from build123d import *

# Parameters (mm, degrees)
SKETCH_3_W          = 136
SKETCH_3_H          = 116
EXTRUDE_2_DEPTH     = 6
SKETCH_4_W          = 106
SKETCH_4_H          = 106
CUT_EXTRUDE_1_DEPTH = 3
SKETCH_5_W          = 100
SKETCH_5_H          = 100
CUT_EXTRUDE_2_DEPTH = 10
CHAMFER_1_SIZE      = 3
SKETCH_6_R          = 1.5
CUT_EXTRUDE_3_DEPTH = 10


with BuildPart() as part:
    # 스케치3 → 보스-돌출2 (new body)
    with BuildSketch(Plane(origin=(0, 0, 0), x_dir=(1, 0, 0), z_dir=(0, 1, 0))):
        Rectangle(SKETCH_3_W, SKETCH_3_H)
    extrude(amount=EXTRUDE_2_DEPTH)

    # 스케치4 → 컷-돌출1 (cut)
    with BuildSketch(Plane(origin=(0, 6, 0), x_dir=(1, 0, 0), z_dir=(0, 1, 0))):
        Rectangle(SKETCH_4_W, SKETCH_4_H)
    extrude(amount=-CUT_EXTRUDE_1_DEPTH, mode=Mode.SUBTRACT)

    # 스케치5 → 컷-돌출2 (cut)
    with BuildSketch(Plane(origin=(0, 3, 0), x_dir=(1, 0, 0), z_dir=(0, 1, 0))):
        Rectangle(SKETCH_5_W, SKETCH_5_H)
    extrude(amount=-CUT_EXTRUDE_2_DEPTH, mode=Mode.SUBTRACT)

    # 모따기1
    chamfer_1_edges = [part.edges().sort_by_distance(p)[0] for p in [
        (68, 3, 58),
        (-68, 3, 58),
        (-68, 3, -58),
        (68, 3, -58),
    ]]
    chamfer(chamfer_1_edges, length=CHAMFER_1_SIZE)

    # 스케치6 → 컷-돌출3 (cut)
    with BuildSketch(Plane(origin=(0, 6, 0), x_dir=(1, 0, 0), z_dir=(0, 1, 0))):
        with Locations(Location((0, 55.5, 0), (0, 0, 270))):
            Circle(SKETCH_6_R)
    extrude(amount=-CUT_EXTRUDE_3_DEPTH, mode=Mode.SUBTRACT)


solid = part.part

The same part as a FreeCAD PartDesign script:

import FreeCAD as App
import Part
import Sketcher


def edges_at(feature, points):
    """Names of the edges that pass closest to the given points."""
    edges = feature.Shape.Edges
    near = lambda p: min(range(len(edges)), key=lambda i: edges[i].distToShape(Part.Vertex(*p))[0])
    return sorted({f"Edge{near(p) + 1}" for p in points})

doc = App.newDocument("Part")
body = doc.addObject("PartDesign::Body", "Body")

sketch1 = body.newObject("Sketcher::SketchObject", "Sketch")
sketch1.AttachmentSupport = (doc.getObject("XZ_Plane"), [""])
sketch1.MapMode = "FlatFace"
sketch1.addGeometry([
    Part.LineSegment(App.Vector(-68, -58, 0), App.Vector(-68, 58, 0)),
    Part.LineSegment(App.Vector(-68, 58, 0), App.Vector(68, 58, 0)),
    Part.LineSegment(App.Vector(68, 58, 0), App.Vector(68, -58, 0)),
    Part.LineSegment(App.Vector(68, -58, 0), App.Vector(-68, -58, 0)),
], False)
sketch1.addConstraint([
    Sketcher.Constraint("Coincident", 0, 2, 1, 1),
    Sketcher.Constraint("Coincident", 1, 2, 2, 1),
    Sketcher.Constraint("Coincident", 2, 2, 3, 1),
    Sketcher.Constraint("Coincident", 3, 2, 0, 1),
    Sketcher.Constraint("Vertical", 0),
    Sketcher.Constraint("Horizontal", 1),
    Sketcher.Constraint("Vertical", 2),
    Sketcher.Constraint("Horizontal", 3),
    Sketcher.Constraint("Symmetric", 0, 2, 2, 2, -1, 1),
    Sketcher.Constraint("DistanceX", 1, 1, 1, 2, 136.0),
    Sketcher.Constraint("DistanceY", 0, 1, 0, 2, 116.0),
])
pad1 = body.newObject("PartDesign::Pad", "Pad")
pad1.Profile = sketch1
pad1.Length = 6
pad1.Reversed = True

sketch2 = body.newObject("Sketcher::SketchObject", "Sketch001")
sketch2.AttachmentSupport = (doc.getObject("XZ_Plane"), [""])
sketch2.MapMode = "FlatFace"
sketch2.AttachmentOffset = App.Placement(App.Vector(0, 0, -6), App.Rotation())
sketch2.addGeometry([
    Part.LineSegment(App.Vector(-53, -53, 0), App.Vector(-53, 53, 0)),
    Part.LineSegment(App.Vector(-53, 53, 0), App.Vector(53, 53, 0)),
    Part.LineSegment(App.Vector(53, 53, 0), App.Vector(53, -53, 0)),
    Part.LineSegment(App.Vector(53, -53, 0), App.Vector(-53, -53, 0)),
], False)
sketch2.addConstraint([
    Sketcher.Constraint("Coincident", 0, 2, 1, 1),
    Sketcher.Constraint("Coincident", 1, 2, 2, 1),
    Sketcher.Constraint("Coincident", 2, 2, 3, 1),
    Sketcher.Constraint("Coincident", 3, 2, 0, 1),
    Sketcher.Constraint("Vertical", 0),
    Sketcher.Constraint("Horizontal", 1),
    Sketcher.Constraint("Vertical", 2),
    Sketcher.Constraint("Horizontal", 3),
    Sketcher.Constraint("Symmetric", 0, 2, 2, 2, -1, 1),
    Sketcher.Constraint("Equal", 3, 0),
    Sketcher.Constraint("DistanceX", 1, 1, 1, 2, 106.0),
])
pocket1 = body.newObject("PartDesign::Pocket", "Pocket")
pocket1.Profile = sketch2
pocket1.Length = 3
pocket1.Reversed = True

sketch3 = body.newObject("Sketcher::SketchObject", "Sketch002")
sketch3.AttachmentSupport = (doc.getObject("XZ_Plane"), [""])
sketch3.MapMode = "FlatFace"
sketch3.AttachmentOffset = App.Placement(App.Vector(0, 0, -3), App.Rotation())
sketch3.addGeometry([
    Part.LineSegment(App.Vector(-50, -50, 0), App.Vector(-50, 50, 0)),
    Part.LineSegment(App.Vector(-50, 50, 0), App.Vector(50, 50, 0)),
    Part.LineSegment(App.Vector(50, 50, 0), App.Vector(50, -50, 0)),
    Part.LineSegment(App.Vector(50, -50, 0), App.Vector(-50, -50, 0)),
], False)
sketch3.addConstraint([
    Sketcher.Constraint("Coincident", 0, 2, 1, 1),
    Sketcher.Constraint("Coincident", 1, 2, 2, 1),
    Sketcher.Constraint("Coincident", 2, 2, 3, 1),
    Sketcher.Constraint("Coincident", 3, 2, 0, 1),
    Sketcher.Constraint("Vertical", 0),
    Sketcher.Constraint("Horizontal", 1),
    Sketcher.Constraint("Vertical", 2),
    Sketcher.Constraint("Horizontal", 3),
    Sketcher.Constraint("Symmetric", 0, 2, 2, 2, -1, 1),
    Sketcher.Constraint("Equal", 3, 0),
    Sketcher.Constraint("DistanceX", 1, 1, 1, 2, 100.0),
])
pocket2 = body.newObject("PartDesign::Pocket", "Pocket001")
pocket2.Profile = sketch3
pocket2.Length = 10
pocket2.Reversed = True
doc.recompute()

chamfer = body.newObject("PartDesign::Chamfer", "Chamfer")
chamfer.Base = (pocket2, edges_at(pocket2, [
    (68, 3, 58),
    (-68, 3, 58),
    (-68, 3, -58),
    (68, 3, -58),
]))
chamfer.Size = 3

sketch4 = body.newObject("Sketcher::SketchObject", "Sketch003")
sketch4.AttachmentSupport = (doc.getObject("XZ_Plane"), [""])
sketch4.MapMode = "FlatFace"
sketch4.AttachmentOffset = App.Placement(App.Vector(0, 0, -6), App.Rotation())
sketch4.addGeometry(Part.Circle(App.Vector(0, -55.5, 0), App.Vector(0, 0, 1), 1.5), False)
sketch4.addConstraint([
    Sketcher.Constraint("PointOnObject", 0, 3, -2),
    Sketcher.Constraint("Diameter", 0, 3.0),
    Sketcher.Constraint("DistanceY", 0, 3, -1, 1, 55.5),
])
pocket3 = body.newObject("PartDesign::Pocket", "Pocket002")
pocket3.Profile = sketch4
pocket3.Length = 10
pocket3.Reversed = True

doc.recompute()
